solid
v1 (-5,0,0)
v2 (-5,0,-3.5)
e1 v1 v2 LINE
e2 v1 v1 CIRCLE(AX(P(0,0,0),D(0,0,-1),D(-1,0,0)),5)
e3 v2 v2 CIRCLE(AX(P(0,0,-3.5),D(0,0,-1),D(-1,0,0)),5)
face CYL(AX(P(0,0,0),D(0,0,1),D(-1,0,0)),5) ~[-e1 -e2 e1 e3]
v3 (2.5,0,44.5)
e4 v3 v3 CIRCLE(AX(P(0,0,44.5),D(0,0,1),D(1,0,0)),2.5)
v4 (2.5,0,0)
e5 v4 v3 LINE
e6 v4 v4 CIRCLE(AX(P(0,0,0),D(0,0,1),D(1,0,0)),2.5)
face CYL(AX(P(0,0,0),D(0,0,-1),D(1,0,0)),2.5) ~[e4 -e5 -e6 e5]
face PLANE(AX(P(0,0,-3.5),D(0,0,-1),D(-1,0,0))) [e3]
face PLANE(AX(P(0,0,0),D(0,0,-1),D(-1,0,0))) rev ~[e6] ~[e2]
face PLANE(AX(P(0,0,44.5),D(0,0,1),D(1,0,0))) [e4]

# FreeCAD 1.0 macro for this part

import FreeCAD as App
import Part
import Sketcher
from FreeCAD import Vector
Q = App.Units.Quantity

doc = App.newDocument("Part")
body = doc.addObject("PartDesign::Body", "Body")

sketch1 = doc.addObject("Sketcher::SketchObject", "Sketch")
body.addObject(sketch1)
sketch1.AttachmentSupport = (doc.XY_Plane, [""])
sketch1.MapMode = "FlatFace"
sketch1.addGeometry(Part.Circle(Vector(0, 0, 0), Vector(0, 0, 1), 2.5), False)
sketch1.addConstraint(Sketcher.Constraint("Coincident", 0, 3, -1, 1))
sketch1.addConstraint(Sketcher.Constraint("Diameter", 0, Q("5 mm")))
pad1 = doc.addObject("PartDesign::Pad", "Pad")
body.addObject(pad1)
pad1.Profile = sketch1
pad1.Length = 44.5

sketch2 = doc.addObject("Sketcher::SketchObject", "Sketch001")
body.addObject(sketch2)
sketch2.AttachmentSupport = (doc.XY_Plane, [""])
sketch2.MapMode = "FlatFace"
sketch2.addGeometry(Part.Circle(Vector(0, 0, 0), Vector(0, 0, 1), 5), False)
sketch2.addConstraint(Sketcher.Constraint("Coincident", 0, 3, -1, 1))
sketch2.addConstraint(Sketcher.Constraint("Diameter", 0, Q("10 mm")))
pad2 = doc.addObject("PartDesign::Pad", "Pad001")
body.addObject(pad2)
pad2.Profile = sketch2
pad2.Length = 3.5
pad2.Reversed = True

doc.recompute()
